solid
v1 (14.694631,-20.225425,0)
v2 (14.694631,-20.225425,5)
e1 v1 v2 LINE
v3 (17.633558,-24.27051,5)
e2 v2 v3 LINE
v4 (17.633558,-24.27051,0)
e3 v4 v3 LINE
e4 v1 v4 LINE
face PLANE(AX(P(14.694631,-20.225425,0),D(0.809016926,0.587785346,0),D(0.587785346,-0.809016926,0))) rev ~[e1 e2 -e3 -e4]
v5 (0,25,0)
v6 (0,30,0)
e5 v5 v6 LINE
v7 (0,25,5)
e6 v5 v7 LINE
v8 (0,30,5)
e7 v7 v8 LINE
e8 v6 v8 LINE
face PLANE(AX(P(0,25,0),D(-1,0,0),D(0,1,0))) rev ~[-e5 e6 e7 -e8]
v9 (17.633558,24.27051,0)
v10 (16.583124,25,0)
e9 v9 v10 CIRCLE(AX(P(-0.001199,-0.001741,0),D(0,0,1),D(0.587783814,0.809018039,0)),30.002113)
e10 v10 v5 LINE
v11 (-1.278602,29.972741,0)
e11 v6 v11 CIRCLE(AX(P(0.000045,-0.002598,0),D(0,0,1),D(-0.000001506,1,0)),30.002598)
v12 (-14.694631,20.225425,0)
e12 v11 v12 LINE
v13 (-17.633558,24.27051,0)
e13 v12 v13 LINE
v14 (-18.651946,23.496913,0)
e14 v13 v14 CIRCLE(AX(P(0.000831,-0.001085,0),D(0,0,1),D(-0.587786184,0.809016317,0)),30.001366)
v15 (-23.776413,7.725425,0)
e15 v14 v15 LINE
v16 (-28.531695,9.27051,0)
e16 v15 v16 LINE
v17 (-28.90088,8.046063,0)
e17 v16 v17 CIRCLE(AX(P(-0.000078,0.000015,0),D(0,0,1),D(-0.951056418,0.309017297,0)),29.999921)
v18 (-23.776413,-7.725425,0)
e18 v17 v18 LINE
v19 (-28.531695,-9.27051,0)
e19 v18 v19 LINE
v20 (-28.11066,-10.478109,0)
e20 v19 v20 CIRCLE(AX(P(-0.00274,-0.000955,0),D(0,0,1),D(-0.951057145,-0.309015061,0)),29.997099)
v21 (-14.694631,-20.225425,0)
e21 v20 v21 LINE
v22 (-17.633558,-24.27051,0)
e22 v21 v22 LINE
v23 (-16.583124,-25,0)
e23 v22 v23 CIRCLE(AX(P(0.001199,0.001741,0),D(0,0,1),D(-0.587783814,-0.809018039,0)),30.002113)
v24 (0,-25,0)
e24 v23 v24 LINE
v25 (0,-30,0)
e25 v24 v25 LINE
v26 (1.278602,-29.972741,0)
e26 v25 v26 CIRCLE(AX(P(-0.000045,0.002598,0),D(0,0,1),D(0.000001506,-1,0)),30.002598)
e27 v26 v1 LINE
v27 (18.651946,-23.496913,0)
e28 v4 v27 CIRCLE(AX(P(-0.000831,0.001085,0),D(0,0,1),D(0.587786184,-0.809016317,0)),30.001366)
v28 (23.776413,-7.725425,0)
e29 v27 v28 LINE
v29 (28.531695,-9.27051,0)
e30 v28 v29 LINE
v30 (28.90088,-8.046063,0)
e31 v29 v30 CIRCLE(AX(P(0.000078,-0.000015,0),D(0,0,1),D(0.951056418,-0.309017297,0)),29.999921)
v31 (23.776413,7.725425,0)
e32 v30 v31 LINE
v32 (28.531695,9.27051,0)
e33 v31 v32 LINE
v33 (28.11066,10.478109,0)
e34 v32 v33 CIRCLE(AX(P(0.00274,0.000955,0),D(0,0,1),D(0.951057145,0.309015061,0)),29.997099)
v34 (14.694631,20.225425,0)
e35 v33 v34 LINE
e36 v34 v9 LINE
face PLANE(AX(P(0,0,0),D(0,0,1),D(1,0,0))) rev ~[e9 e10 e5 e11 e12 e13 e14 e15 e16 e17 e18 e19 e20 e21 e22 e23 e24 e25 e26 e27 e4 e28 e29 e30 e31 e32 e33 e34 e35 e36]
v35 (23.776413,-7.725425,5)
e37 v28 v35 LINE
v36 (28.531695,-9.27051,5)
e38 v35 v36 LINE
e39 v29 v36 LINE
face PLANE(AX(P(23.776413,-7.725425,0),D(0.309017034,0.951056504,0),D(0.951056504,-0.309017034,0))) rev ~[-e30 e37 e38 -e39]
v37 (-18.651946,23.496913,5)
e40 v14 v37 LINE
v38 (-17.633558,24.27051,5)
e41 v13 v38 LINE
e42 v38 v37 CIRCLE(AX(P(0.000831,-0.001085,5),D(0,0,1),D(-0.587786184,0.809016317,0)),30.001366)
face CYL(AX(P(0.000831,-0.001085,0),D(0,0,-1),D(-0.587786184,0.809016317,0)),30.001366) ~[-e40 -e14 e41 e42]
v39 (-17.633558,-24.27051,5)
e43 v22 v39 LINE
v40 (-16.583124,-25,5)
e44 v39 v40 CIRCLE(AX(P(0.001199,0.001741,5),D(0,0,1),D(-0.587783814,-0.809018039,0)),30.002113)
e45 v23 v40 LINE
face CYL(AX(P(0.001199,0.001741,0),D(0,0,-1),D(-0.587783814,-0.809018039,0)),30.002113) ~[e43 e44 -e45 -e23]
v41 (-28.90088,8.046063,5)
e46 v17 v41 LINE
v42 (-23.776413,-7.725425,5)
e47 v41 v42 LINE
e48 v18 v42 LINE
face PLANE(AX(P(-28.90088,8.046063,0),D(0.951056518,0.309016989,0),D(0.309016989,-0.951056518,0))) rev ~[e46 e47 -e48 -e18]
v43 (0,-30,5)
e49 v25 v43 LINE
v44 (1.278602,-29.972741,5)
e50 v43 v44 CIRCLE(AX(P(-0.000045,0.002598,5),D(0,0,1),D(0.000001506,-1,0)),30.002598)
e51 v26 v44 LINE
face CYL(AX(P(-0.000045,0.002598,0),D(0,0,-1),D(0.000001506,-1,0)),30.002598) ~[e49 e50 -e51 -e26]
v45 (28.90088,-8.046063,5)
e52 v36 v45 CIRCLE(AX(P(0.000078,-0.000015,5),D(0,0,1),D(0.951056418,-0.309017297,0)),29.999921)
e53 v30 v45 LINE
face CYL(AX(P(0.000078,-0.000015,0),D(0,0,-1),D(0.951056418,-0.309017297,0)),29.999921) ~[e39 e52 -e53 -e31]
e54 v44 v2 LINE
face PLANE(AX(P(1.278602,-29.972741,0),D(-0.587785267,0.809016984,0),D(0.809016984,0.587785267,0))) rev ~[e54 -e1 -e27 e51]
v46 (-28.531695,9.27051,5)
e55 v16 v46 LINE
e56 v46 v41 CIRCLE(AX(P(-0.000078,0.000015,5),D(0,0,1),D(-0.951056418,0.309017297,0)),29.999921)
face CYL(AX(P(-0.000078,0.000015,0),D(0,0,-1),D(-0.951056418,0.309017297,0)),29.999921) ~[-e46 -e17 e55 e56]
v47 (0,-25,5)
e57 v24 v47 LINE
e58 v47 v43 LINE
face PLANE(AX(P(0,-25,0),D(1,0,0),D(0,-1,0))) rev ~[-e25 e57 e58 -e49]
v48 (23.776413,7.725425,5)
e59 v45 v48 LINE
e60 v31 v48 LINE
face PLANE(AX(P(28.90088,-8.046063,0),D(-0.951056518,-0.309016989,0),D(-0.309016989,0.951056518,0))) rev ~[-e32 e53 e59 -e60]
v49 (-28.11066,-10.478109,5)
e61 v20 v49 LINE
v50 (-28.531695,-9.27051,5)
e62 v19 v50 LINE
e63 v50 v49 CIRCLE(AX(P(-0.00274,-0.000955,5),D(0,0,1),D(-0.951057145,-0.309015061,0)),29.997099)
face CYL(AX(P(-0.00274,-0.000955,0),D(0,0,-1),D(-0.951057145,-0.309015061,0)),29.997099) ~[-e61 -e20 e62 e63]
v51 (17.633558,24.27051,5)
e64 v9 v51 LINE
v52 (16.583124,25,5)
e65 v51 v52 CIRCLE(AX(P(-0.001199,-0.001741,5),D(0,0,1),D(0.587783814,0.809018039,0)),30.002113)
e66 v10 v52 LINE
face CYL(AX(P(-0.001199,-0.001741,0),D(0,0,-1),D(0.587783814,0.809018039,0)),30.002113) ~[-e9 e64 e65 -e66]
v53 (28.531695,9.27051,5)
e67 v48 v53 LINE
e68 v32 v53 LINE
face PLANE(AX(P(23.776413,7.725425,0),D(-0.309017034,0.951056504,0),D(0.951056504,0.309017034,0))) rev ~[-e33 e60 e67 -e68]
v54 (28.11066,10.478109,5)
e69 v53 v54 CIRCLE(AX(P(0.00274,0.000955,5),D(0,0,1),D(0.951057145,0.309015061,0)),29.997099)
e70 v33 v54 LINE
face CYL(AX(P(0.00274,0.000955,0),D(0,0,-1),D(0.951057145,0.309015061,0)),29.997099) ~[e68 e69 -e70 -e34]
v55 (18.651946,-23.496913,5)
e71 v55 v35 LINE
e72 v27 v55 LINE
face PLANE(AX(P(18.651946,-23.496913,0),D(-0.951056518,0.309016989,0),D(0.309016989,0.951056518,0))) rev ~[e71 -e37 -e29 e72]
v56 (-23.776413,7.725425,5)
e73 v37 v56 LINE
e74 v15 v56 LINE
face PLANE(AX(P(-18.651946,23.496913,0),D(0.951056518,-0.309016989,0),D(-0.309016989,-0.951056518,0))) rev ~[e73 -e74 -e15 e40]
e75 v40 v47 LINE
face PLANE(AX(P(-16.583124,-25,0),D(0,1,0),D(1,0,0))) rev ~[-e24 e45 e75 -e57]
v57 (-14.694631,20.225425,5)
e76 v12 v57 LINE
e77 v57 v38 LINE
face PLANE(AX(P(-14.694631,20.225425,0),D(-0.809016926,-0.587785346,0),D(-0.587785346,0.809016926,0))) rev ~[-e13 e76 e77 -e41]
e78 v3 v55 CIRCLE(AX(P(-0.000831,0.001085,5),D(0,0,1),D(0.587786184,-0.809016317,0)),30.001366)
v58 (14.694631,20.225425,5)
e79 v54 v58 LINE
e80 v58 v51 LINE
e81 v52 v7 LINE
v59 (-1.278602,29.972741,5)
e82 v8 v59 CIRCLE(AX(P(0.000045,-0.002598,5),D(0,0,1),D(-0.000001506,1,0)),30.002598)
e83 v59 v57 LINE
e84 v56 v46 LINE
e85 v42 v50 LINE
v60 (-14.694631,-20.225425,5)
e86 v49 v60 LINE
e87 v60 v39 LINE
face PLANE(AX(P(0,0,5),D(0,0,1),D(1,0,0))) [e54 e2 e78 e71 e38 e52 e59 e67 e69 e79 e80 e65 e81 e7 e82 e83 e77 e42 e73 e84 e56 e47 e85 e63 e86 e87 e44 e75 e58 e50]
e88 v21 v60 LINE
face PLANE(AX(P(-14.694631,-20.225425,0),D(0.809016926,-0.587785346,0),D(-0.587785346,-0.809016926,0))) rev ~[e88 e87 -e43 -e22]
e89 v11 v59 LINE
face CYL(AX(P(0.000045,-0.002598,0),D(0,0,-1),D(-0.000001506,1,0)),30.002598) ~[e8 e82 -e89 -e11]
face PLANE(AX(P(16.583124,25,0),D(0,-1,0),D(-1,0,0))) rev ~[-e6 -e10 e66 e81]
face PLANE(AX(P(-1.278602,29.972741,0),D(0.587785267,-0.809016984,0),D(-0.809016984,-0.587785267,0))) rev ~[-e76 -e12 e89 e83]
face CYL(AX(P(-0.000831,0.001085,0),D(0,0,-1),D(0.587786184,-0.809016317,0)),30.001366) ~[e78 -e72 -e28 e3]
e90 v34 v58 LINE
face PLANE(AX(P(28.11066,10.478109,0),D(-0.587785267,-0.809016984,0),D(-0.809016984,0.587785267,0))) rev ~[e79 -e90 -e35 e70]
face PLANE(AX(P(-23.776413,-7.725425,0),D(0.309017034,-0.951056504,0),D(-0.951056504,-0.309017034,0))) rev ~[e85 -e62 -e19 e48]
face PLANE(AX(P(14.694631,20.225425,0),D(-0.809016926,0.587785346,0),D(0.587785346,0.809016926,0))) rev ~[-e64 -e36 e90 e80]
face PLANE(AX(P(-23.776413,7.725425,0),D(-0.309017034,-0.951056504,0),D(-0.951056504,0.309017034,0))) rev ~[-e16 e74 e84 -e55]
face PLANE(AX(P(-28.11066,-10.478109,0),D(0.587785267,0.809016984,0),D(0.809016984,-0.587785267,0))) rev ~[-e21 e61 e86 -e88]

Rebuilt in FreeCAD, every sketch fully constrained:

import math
import FreeCAD as App
import Part
import Sketcher

doc = App.newDocument("Part")
params = doc.addObject("Spreadsheet::Sheet", "Params")
for row, (alias, value) in enumerate([
    ("sketch1_height", "5 mm"),
    ("sketch1_height2", "5 mm"),
    ("sketch1_length", "4.999999 mm"),
    ("sketch1_length2", "5 mm"),
    ("sketch1_length3", "5 mm"),
    ("pad1_length", "5 mm"),
], start=1):
    params.set(f"A{row}", alias)
    params.set(f"B{row}", "=" + value)
    params.setAlias(f"B{row}", alias)

body = doc.addObject("PartDesign::Body", "Body")

# Sketch on XY plane
sketch1 = body.newObject("Sketcher::SketchObject", "Sketch")
sketch1.AttachmentSupport = (doc.getObject("XY_Plane"), [""])
sketch1.MapMode = "FlatFace"
sketch1.addGeometry(Part.LineSegment(App.Vector(23.776413, 7.725425, 0), App.Vector(28.531695, 9.27051, 0)), False)
sketch1.addGeometry(Part.ArcOfCircle(Part.Circle(App.Vector(0.00274, 0.000955, 0), App.Vector(0, 0, 1), 29.997099), math.radians(17.999884), math.radians(20.442809)), False)
sketch1.addGeometry(Part.LineSegment(App.Vector(28.11066, 10.478109, 0), App.Vector(14.694631, 20.225425, 0)), False)
sketch1.addGeometry(Part.LineSegment(App.Vector(14.694631, 20.225425, 0), App.Vector(17.633558, 24.27051, 0)), False)
sketch1.addGeometry(Part.ArcOfCircle(Part.Circle(App.Vector(-0.001199, -0.001741, 0), App.Vector(0, 0, 1), 30.002113), math.radians(54.000102), math.radians(56.44262)), False)
sketch1.addGeometry(Part.LineSegment(App.Vector(16.583124, 25, 0), App.Vector(0, 25, 0)), False)
sketch1.addGeometry(Part.LineSegment(App.Vector(0, 25, 0), App.Vector(0, 30, 0)), False)
sketch1.addGeometry(Part.ArcOfCircle(Part.Circle(App.Vector(0.000045, -0.002598, 0), App.Vector(0, 0, 1), 30.002598), math.radians(90.000086), math.radians(92.442565)), False)
sketch1.addGeometry(Part.LineSegment(App.Vector(-1.278602, 29.972741, 0), App.Vector(-14.694631, 20.225425, 0)), False)
sketch1.addGeometry(Part.LineSegment(App.Vector(-14.694631, 20.225425, 0), App.Vector(-17.633558, 24.27051, 0)), False)
sketch1.addGeometry(Part.ArcOfCircle(Part.Circle(App.Vector(0.000831, -0.001085, 0), App.Vector(0, 0, 1), 30.001366), math.radians(126.000066), math.radians(128.442645)), False)
sketch1.addGeometry(Part.LineSegment(App.Vector(-18.651946, 23.496913, 0), App.Vector(-23.776413, 7.725425, 0)), False)
sketch1.addGeometry(Part.LineSegment(App.Vector(-23.776413, 7.725425, 0), App.Vector(-28.531695, 9.27051, 0)), False)
sketch1.addGeometry(Part.ArcOfCircle(Part.Circle(App.Vector(-0.000078, 0.000015, 0), App.Vector(0, 0, 1), 29.999921), math.radians(161.999982), math.radians(164.442679)), False)
sketch1.addGeometry(Part.LineSegment(App.Vector(-28.90088, 8.046063, 0), App.Vector(-23.776413, -7.725425, 0)), False)
sketch1.addGeometry(Part.LineSegment(App.Vector(-23.776413, -7.725425, 0), App.Vector(-28.531695, -9.27051, 0)), False)
sketch1.addGeometry(Part.ArcOfCircle(Part.Circle(App.Vector(-0.00274, -0.000955, 0), App.Vector(0, 0, 1), 29.997099), math.radians(-162.000116), math.radians(-159.557191)), False)
sketch1.addGeometry(Part.LineSegment(App.Vector(-28.11066, -10.478109, 0), App.Vector(-14.694631, -20.225425, 0)), False)
sketch1.addGeometry(Part.LineSegment(App.Vector(-14.694631, -20.225425, 0), App.Vector(-17.633558, -24.27051, 0)), False)
sketch1.addGeometry(Part.ArcOfCircle(Part.Circle(App.Vector(0.001199, 0.001741, 0), App.Vector(0, 0, 1), 30.002113), math.radians(-125.999898), math.radians(-123.55738)), False)
sketch1.addGeometry(Part.LineSegment(App.Vector(-16.583124, -25, 0), App.Vector(0, -25, 0)), False)
sketch1.addGeometry(Part.LineSegment(App.Vector(0, -25, 0), App.Vector(0, -30, 0)), False)
sketch1.addGeometry(Part.ArcOfCircle(Part.Circle(App.Vector(-0.000045, 0.002598, 0), App.Vector(0, 0, 1), 30.002598), math.radians(-89.999914), math.radians(-87.557435)), False)
sketch1.addGeometry(Part.LineSegment(App.Vector(1.278602, -29.972741, 0), App.Vector(14.694631, -20.225425, 0)), False)
sketch1.addGeometry(Part.LineSegment(App.Vector(14.694631, -20.225425, 0), App.Vector(17.633558, -24.27051, 0)), False)
sketch1.addGeometry(Part.ArcOfCircle(Part.Circle(App.Vector(-0.000831, 0.001085, 0), App.Vector(0, 0, 1), 30.001366), math.radians(-53.999934), math.radians(-51.557355)), False)
sketch1.addGeometry(Part.LineSegment(App.Vector(18.651946, -23.496913, 0), App.Vector(23.776413, -7.725425, 0)), False)
sketch1.addGeometry(Part.LineSegment(App.Vector(23.776413, -7.725425, 0), App.Vector(28.531695, -9.27051, 0)), False)
sketch1.addGeometry(Part.ArcOfCircle(Part.Circle(App.Vector(0.000078, -0.000015, 0), App.Vector(0, 0, 1), 29.999921), math.radians(-18.000018), math.radians(-15.557321)), False)
sketch1.addGeometry(Part.LineSegment(App.Vector(28.90088, -8.046063, 0), App.Vector(23.776413, 7.725425, 0)), False)
sketch1.addConstraint(Sketcher.Constraint("Coincident", 0, 2, 1, 1))
sketch1.addConstraint(Sketcher.Constraint("Coincident", 1, 2, 2, 1))
sketch1.addConstraint(Sketcher.Constraint("Coincident", 2, 2, 3, 1))
sketch1.addConstraint(Sketcher.Constraint("Coincident", 3, 2, 4, 1))
sketch1.addConstraint(Sketcher.Constraint("Coincident", 4, 2, 5, 1))
sketch1.addConstraint(Sketcher.Constraint("Coincident", 5, 2, 6, 1))
sketch1.addConstraint(Sketcher.Constraint("Coincident", 6, 2, 7, 1))
sketch1.addConstraint(Sketcher.Constraint("Coincident", 7, 2, 8, 1))
sketch1.addConstraint(Sketcher.Constraint("Coincident", 8, 2, 9, 1))
sketch1.addConstraint(Sketcher.Constraint("Coincident", 9, 2, 10, 1))
sketch1.addConstraint(Sketcher.Constraint("Coincident", 10, 2, 11, 1))
sketch1.addConstraint(Sketcher.Constraint("Coincident", 11, 2, 12, 1))
sketch1.addConstraint(Sketcher.Constraint("Coincident", 12, 2, 13, 1))
sketch1.addConstraint(Sketcher.Constraint("Coincident", 13, 2, 14, 1))
sketch1.addConstraint(Sketcher.Constraint("Coincident", 14, 2, 15, 1))
sketch1.addConstraint(Sketcher.Constraint("Coincident", 15, 2, 16, 1))
sketch1.addConstraint(Sketcher.Constraint("Coincident", 16, 2, 17, 1))
sketch1.addConstraint(Sketcher.Constraint("Coincident", 17, 2, 18, 1))
sketch1.addConstraint(Sketcher.Constraint("Coincident", 18, 2, 19, 1))
sketch1.addConstraint(Sketcher.Constraint("Coincident", 19, 2, 20, 1))
sketch1.addConstraint(Sketcher.Constraint("Coincident", 20, 2, 21, 1))
sketch1.addConstraint(Sketcher.Constraint("Coincident", 21, 2, 22, 1))
sketch1.addConstraint(Sketcher.Constraint("Coincident", 22, 2, 23, 1))
sketch1.addConstraint(Sketcher.Constraint("Coincident", 23, 2, 24, 1))
sketch1.addConstraint(Sketcher.Constraint("Coincident", 24, 2, 25, 1))
sketch1.addConstraint(Sketcher.Constraint("Coincident", 25, 2, 26, 1))
sketch1.addConstraint(Sketcher.Constraint("Coincident", 26, 2, 27, 1))
sketch1.addConstraint(Sketcher.Constraint("Coincident", 27, 2, 28, 1))
sketch1.addConstraint(Sketcher.Constraint("Coincident", 28, 2, 29, 1))
sketch1.addConstraint(Sketcher.Constraint("Coincident", 29, 2, 0, 1))
sketch1.addConstraint(Sketcher.Constraint("Horizontal", 5))
sketch1.addConstraint(Sketcher.Constraint("Vertical", 6))
sketch1.addConstraint(Sketcher.Constraint("Horizontal", 20))
sketch1.addConstraint(Sketcher.Constraint("Vertical", 21))
sketch1.addConstraint(Sketcher.Constraint("PointOnObject", 5, 2, -2))
sketch1.addConstraint(Sketcher.Constraint("PointOnObject", 20, 2, -2))
sketch1.addConstraint(Sketcher.Constraint("DistanceY", 6, 1, 6, 2, 5.0))
sketch1.addConstraint(Sketcher.Constraint("DistanceY", 21, 2, 21, 1, 5.0))
sketch1.addConstraint(Sketcher.Constraint("Distance", 0, 4.999999))
sketch1.addConstraint(Sketcher.Constraint("Distance", 3, 5.0))
sketch1.addConstraint(Sketcher.Constraint("Distance", 9, 5.0))
sketch1.addConstraint(Sketcher.Constraint("Distance", 12, 4.999999))
sketch1.addConstraint(Sketcher.Constraint("Distance", 15, 4.999999))
sketch1.addConstraint(Sketcher.Constraint("Distance", 18, 5.0))
sketch1.addConstraint(Sketcher.Constraint("Distance", 24, 5.0))
sketch1.addConstraint(Sketcher.Constraint("Distance", 27, 4.999999))
sketch1.addConstraint(Sketcher.Constraint("DistanceY", -1, 1, 4, 2, 25.0))
sketch1.addConstraint(Sketcher.Constraint("DistanceY", 19, 2, -1, 1, 25.0))
sketch1.addConstraint(Sketcher.Constraint("DistanceY", 0, 2, 3, 2, 15.0))
sketch1.addConstraint(Sketcher.Constraint("DistanceY", 12, 2, 9, 2, 15.0))
sketch1.addConstraint(Sketcher.Constraint("DistanceY", 18, 2, 15, 2, 15.0))
sketch1.addConstraint(Sketcher.Constraint("DistanceY", 24, 2, 27, 2, 15.0))
sketch1.addConstraint(Sketcher.Constraint("Radius", 1, 29.997099))
sketch1.addConstraint(Sketcher.Constraint("Radius", 7, 30.002598))
sketch1.addConstraint(Sketcher.Constraint("Radius", 16, 29.997099))
sketch1.addConstraint(Sketcher.Constraint("Radius", 22, 30.002598))
sketch1.addConstraint(Sketcher.Constraint("DistanceY", 11, 2, 8, 2, 12.5))
sketch1.addConstraint(Sketcher.Constraint("DistanceY", 17, 2, 14, 2, 12.5))
sketch1.addConstraint(Sketcher.Constraint("DistanceY", 23, 2, 26, 2, 12.5))
sketch1.addConstraint(Sketcher.Constraint("DistanceY", 29, 2, 2, 2, 12.5))
sketch1.addConstraint(Sketcher.Constraint("Radius", 13, 29.999921))
sketch1.addConstraint(Sketcher.Constraint("Radius", 28, 29.999921))
sketch1.addConstraint(Sketcher.Constraint("Radius", 4, 30.002113))
sketch1.addConstraint(Sketcher.Constraint("Radius", 10, 30.001366))
sketch1.addConstraint(Sketcher.Constraint("Radius", 19, 30.002113))
sketch1.addConstraint(Sketcher.Constraint("Radius", 25, 30.001366))
sketch1.addConstraint(Sketcher.Constraint("DistanceX", 4, 3, -1, 1, 0.001199))
sketch1.addConstraint(Sketcher.Constraint("DistanceX", -1, 1, 19, 3, 0.001199))
sketch1.addConstraint(Sketcher.Constraint("DistanceX", 7, 2, -1, 1, 1.278602))
sketch1.addConstraint(Sketcher.Constraint("DistanceX", -1, 1, 22, 2, 1.278602))
sketch1.addConstraint(Sketcher.Constraint("DistanceY", 10, 3, 13, 3, 0.0011))
sketch1.addConstraint(Sketcher.Constraint("DistanceY", 28, 3, 25, 3, 0.0011))
sketch1.addConstraint(Sketcher.Constraint("DistanceY", 0, 2, 1, 2, 1.207599))
sketch1.addConstraint(Sketcher.Constraint("DistanceX", 3, 2, 1, 2, 10.477102))
sketch1.addConstraint(Sketcher.Constraint("DistanceX", 8, 2, 25, 3, 14.6938))
sketch1.addConstraint(Sketcher.Constraint("DistanceY", 16, 2, 15, 2, 1.207599))
sketch1.addConstraint(Sketcher.Constraint("DistanceX", 16, 2, 18, 2, 10.477102))
sketch1.addConstraint(Sketcher.Constraint("DistanceX", 10, 3, 23, 2, 14.6938))
sketch1.addConstraint(Sketcher.Constraint("DistanceX", 5, 2, 5, 1, 16.583124))
sketch1.addConstraint(Sketcher.Constraint("DistanceX", 20, 1, 20, 2, 16.583124))
sketch1.addConstraint(Sketcher.Constraint("DistanceX", -1, 1, 1, 3, 0.00274))
sketch1.addConstraint(Sketcher.Constraint("DistanceX", -1, 1, 10, 3, 0.000831))
sketch1.addConstraint(Sketcher.Constraint("DistanceX", 16, 3, -1, 1, 0.00274))
sketch1.addConstraint(Sketcher.Constraint("DistanceX", 25, 3, -1, 1, 0.000831))
sketch1.addConstraint(Sketcher.Constraint("DistanceY", -1, 1, 0, 2, 9.27051))
sketch1.addConstraint(Sketcher.Constraint("DistanceX", -1, 1, 2, 2, 14.694631))
sketch1.addConstraint(Sketcher.Constraint("DistanceY", -1, 1, 7, 2, 29.972741))
sketch1.addConstraint(Sketcher.Constraint("DistanceX", 9, 2, -1, 1, 17.633558))
sketch1.addConstraint(Sketcher.Constraint("DistanceY", -1, 1, 9, 2, 24.27051))
sketch1.addConstraint(Sketcher.Constraint("DistanceX", 13, 2, -1, 1, 28.90088))
sketch1.addConstraint(Sketcher.Constraint("DistanceY", 15, 2, -1, 1, 9.27051))
sketch1.addConstraint(Sketcher.Constraint("DistanceX", 17, 2, -1, 1, 14.694631))
sketch1.addConstraint(Sketcher.Constraint("DistanceY", 22, 2, -1, 1, 29.972741))
sketch1.addConstraint(Sketcher.Constraint("DistanceX", -1, 1, 24, 2, 17.633558))
sketch1.addConstraint(Sketcher.Constraint("DistanceY", 24, 2, -1, 1, 24.27051))
sketch1.addConstraint(Sketcher.Constraint("DistanceX", -1, 1, 28, 2, 28.90088))
sketch1.addConstraint(Sketcher.Constraint("DistanceX", 13, 3, 10, 3, 0.000908))
sketch1.addConstraint(Sketcher.Constraint("DistanceX", 25, 3, 28, 3, 0.000908))
sketch1.addConstraint(Sketcher.Constraint("DistanceX", 10, 2, 9, 2, 1.018388))
sketch1.addConstraint(Sketcher.Constraint("DistanceX", 24, 2, 25, 2, 1.018388))
sketch1.setExpression("Constraints[36]", "Params.sketch1_height")
sketch1.setExpression("Constraints[37]", "Params.sketch1_height2")
sketch1.setExpression("Constraints[38]", "Params.sketch1_length")
sketch1.setExpression("Constraints[39]", "Params.sketch1_length2")
sketch1.setExpression("Constraints[40]", "Params.sketch1_length3")
pad1 = body.newObject("PartDesign::Pad", "Pad")
pad1.Profile = sketch1
pad1.setExpression("Length", "Params.pad1_length")

doc.recompute()
